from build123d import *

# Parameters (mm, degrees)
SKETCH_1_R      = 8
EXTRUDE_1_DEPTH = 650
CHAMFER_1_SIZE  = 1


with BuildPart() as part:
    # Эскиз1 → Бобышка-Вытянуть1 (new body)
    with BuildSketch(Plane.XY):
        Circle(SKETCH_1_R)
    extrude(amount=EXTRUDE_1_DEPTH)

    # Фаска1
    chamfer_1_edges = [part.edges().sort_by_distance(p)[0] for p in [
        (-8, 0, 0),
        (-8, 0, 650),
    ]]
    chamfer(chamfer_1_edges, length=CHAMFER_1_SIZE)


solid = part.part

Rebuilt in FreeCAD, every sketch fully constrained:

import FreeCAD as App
import Part
import Sketcher

V = App.Vector


def edges_at(feature, points):
    """Names of the edges that pass closest to the given points."""
    edges = feature.Shape.Edges
    near = lambda p: min(range(len(edges)), key=lambda i: edges[i].distToShape(Part.Vertex(*p))[0])
    return sorted({f"Edge{near(p) + 1}" for p in points})

doc = App.newDocument("Part")
params = doc.addObject("Spreadsheet::Sheet", "Params")
for row, (alias, value) in enumerate([
    ("sketch1_diameter", "16 mm"),
    ("pad1_length", "650 mm"),
    ("chamfer_size", "1 mm"),
], start=1):
    params.set(f"A{row}", alias)
    params.set(f"B{row}", "=" + value)
    params.setAlias(f"B{row}", alias)

body = doc.addObject("PartDesign::Body", "Body")

# Sketch on XY plane
sketch1 = doc.addObject("Sketcher::SketchObject", "Sketch")
body.addObject(sketch1)
sketch1.AttachmentSupport = (doc.XY_Plane, [""])
sketch1.MapMode = "FlatFace"
sketch1.addGeometry(Part.Circle(V(0, 0, 0), V(0, 0, 1), 8), False)
sketch1.addConstraint([
    Sketcher.Constraint("Coincident", 0, 3, -1, 1),
    Sketcher.Constraint("Diameter", 0, 16.0),
])
sketch1.setExpression("Constraints[1]", "Params.sketch1_diameter")
pad1 = doc.addObject("PartDesign::Pad", "Pad")
body.addObject(pad1)
pad1.Profile = sketch1
pad1.setExpression("Length", "Params.pad1_length")
doc.recompute()

chamfer = doc.addObject("PartDesign::Chamfer", "Chamfer")
body.addObject(chamfer)
chamfer.Base = (pad1, edges_at(pad1, [(-8, 0, 0), (-8, 0, 650)]))
chamfer.setExpression("Size", "Params.chamfer_size")

doc.recompute()
